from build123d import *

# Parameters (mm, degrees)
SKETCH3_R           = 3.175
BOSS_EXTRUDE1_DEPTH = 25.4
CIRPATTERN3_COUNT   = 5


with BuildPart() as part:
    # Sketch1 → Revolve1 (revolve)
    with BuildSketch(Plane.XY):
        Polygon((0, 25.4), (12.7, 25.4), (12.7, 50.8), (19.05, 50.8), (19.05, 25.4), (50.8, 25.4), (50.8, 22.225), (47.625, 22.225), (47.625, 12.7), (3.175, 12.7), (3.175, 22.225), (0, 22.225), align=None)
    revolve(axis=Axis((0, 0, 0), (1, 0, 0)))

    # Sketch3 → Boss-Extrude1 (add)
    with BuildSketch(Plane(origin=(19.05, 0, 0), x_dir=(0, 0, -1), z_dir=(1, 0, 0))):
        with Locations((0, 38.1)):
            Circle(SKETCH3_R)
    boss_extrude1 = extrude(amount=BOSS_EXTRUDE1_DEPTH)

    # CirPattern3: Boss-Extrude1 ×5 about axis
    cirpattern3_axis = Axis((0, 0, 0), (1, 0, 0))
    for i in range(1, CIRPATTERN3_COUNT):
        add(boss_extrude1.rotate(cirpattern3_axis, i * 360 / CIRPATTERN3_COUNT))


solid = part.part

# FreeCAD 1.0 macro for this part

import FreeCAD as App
import Part
import Sketcher
Q = App.Units.Quantity


def add_polygon(sketch, points):
    """Adds a closed chain of lines whose ends are joined by coincident constraints."""
    first, n = sketch.GeometryCount, len(points)
    for a, b in zip(points, points[1:] + points[:1]):
        sketch.addGeometry(Part.LineSegment(App.Vector(*a, 0), App.Vector(*b, 0)), False)
    for i in range(n):
        sketch.addConstraint(Sketcher.Constraint("Coincident", first + i, 2, first + (i + 1) % n, 1))

doc = App.newDocument("Part")
body = doc.addObject("PartDesign::Body", "Body")

sketch1 = doc.addObject("Sketcher::SketchObject", "Sketch")
body.addObject(sketch1)
sketch1.AttachmentSupport = (doc.XY_Plane, [""])
sketch1.MapMode = "FlatFace"
add_polygon(sketch1, [(12.7, 25.4), (0, 25.4), (0, 22.2), (3.2, 22.2), (3.2, 12.7), (47.6, 12.7), (47.6, 22.2), (50.8, 22.2), (50.8, 25.4), (19.1, 25.4), (19.1, 50.8), (12.7, 50.8)])
sketch1.addConstraint([
    Sketcher.Constraint("Horizontal", 0),
    Sketcher.Constraint("Vertical", 1),
    Sketcher.Constraint("Horizontal", 2),
    Sketcher.Constraint("Vertical", 3),
    Sketcher.Constraint("Horizontal", 4),
    Sketcher.Constraint("Vertical", 5),
    Sketcher.Constraint("Horizontal", 6),
    Sketcher.Constraint("Vertical", 7),
    Sketcher.Constraint("Horizontal", 8),
    Sketcher.Constraint("Vertical", 9),
    Sketcher.Constraint("Horizontal", 10),
    Sketcher.Constraint("Vertical", 11),
    Sketcher.Constraint("PointOnObject", 0, 2, -2),
    Sketcher.Constraint("Horizontal", 2, 2, 5, 2),
    Sketcher.Constraint("Horizontal", 0, 2, 7, 2),
    Sketcher.Constraint("Equal", 2, 6),
    Sketcher.Constraint("Equal", 6, 1),
    Sketcher.Constraint("DistanceY", 9, 1, 9, 2, Q("1 in")),
    Sketcher.Constraint("DistanceX", 0, 2, 0, 1, Q("0.5 in")),
    Sketcher.Constraint("DistanceY", -1, 1, 0, 2, Q("1 in")),
    Sketcher.Constraint("DistanceX", -1, 1, 6, 2, Q("2 in")),
    Sketcher.Constraint("DistanceX", 4, 1, 4, 2, Q("1.75 in")),
    Sketcher.Constraint("DistanceX", 8, 2, 8, 1, Q("1.25 in")),
    Sketcher.Constraint("DistanceY", -1, 1, 3, 2, Q("0.5 in")),
])
revolution = doc.addObject("PartDesign::Revolution", "Revolution")
body.addObject(revolution)
revolution.Profile = sketch1
revolution.ReferenceAxis = (sketch1, ["H_Axis"])
revolution.Angle = 360

sketch2 = doc.addObject("Sketcher::SketchObject", "Sketch001")
body.addObject(sketch2)
sketch2.AttachmentSupport = (doc.YZ_Plane, [""])
sketch2.MapMode = "FlatFace"
sketch2.AttachmentOffset = App.Placement(App.Vector(0, 0, 0.75 * 25.4), App.Rotation())
sketch2.addGeometry(Part.Circle(App.Vector(38.1, 0, 0), App.Vector(0, 0, 1), 3.2), False)
sketch2.addConstraint([
    Sketcher.Constraint("PointOnObject", 0, 3, -1),
    Sketcher.Constraint("Diameter", 0, Q("0.25 in")),
    Sketcher.Constraint("DistanceX", -1, 1, 0, 3, Q("1.5 in")),
])
pad1 = doc.addObject("PartDesign::Pad", "Pad")
body.addObject(pad1)
pad1.Profile = sketch2
pad1.Length = Q("1 in")
doc.recompute()

polarpattern = doc.addObject("PartDesign::PolarPattern", "PolarPattern")
body.addObject(polarpattern)
polarpattern.Originals = [pad1]
polarpattern.Axis = (doc.X_Axis, [""])
polarpattern.Angle = 360
polarpattern.Occurrences = 5
body.Tip = polarpattern

doc.recompute()
